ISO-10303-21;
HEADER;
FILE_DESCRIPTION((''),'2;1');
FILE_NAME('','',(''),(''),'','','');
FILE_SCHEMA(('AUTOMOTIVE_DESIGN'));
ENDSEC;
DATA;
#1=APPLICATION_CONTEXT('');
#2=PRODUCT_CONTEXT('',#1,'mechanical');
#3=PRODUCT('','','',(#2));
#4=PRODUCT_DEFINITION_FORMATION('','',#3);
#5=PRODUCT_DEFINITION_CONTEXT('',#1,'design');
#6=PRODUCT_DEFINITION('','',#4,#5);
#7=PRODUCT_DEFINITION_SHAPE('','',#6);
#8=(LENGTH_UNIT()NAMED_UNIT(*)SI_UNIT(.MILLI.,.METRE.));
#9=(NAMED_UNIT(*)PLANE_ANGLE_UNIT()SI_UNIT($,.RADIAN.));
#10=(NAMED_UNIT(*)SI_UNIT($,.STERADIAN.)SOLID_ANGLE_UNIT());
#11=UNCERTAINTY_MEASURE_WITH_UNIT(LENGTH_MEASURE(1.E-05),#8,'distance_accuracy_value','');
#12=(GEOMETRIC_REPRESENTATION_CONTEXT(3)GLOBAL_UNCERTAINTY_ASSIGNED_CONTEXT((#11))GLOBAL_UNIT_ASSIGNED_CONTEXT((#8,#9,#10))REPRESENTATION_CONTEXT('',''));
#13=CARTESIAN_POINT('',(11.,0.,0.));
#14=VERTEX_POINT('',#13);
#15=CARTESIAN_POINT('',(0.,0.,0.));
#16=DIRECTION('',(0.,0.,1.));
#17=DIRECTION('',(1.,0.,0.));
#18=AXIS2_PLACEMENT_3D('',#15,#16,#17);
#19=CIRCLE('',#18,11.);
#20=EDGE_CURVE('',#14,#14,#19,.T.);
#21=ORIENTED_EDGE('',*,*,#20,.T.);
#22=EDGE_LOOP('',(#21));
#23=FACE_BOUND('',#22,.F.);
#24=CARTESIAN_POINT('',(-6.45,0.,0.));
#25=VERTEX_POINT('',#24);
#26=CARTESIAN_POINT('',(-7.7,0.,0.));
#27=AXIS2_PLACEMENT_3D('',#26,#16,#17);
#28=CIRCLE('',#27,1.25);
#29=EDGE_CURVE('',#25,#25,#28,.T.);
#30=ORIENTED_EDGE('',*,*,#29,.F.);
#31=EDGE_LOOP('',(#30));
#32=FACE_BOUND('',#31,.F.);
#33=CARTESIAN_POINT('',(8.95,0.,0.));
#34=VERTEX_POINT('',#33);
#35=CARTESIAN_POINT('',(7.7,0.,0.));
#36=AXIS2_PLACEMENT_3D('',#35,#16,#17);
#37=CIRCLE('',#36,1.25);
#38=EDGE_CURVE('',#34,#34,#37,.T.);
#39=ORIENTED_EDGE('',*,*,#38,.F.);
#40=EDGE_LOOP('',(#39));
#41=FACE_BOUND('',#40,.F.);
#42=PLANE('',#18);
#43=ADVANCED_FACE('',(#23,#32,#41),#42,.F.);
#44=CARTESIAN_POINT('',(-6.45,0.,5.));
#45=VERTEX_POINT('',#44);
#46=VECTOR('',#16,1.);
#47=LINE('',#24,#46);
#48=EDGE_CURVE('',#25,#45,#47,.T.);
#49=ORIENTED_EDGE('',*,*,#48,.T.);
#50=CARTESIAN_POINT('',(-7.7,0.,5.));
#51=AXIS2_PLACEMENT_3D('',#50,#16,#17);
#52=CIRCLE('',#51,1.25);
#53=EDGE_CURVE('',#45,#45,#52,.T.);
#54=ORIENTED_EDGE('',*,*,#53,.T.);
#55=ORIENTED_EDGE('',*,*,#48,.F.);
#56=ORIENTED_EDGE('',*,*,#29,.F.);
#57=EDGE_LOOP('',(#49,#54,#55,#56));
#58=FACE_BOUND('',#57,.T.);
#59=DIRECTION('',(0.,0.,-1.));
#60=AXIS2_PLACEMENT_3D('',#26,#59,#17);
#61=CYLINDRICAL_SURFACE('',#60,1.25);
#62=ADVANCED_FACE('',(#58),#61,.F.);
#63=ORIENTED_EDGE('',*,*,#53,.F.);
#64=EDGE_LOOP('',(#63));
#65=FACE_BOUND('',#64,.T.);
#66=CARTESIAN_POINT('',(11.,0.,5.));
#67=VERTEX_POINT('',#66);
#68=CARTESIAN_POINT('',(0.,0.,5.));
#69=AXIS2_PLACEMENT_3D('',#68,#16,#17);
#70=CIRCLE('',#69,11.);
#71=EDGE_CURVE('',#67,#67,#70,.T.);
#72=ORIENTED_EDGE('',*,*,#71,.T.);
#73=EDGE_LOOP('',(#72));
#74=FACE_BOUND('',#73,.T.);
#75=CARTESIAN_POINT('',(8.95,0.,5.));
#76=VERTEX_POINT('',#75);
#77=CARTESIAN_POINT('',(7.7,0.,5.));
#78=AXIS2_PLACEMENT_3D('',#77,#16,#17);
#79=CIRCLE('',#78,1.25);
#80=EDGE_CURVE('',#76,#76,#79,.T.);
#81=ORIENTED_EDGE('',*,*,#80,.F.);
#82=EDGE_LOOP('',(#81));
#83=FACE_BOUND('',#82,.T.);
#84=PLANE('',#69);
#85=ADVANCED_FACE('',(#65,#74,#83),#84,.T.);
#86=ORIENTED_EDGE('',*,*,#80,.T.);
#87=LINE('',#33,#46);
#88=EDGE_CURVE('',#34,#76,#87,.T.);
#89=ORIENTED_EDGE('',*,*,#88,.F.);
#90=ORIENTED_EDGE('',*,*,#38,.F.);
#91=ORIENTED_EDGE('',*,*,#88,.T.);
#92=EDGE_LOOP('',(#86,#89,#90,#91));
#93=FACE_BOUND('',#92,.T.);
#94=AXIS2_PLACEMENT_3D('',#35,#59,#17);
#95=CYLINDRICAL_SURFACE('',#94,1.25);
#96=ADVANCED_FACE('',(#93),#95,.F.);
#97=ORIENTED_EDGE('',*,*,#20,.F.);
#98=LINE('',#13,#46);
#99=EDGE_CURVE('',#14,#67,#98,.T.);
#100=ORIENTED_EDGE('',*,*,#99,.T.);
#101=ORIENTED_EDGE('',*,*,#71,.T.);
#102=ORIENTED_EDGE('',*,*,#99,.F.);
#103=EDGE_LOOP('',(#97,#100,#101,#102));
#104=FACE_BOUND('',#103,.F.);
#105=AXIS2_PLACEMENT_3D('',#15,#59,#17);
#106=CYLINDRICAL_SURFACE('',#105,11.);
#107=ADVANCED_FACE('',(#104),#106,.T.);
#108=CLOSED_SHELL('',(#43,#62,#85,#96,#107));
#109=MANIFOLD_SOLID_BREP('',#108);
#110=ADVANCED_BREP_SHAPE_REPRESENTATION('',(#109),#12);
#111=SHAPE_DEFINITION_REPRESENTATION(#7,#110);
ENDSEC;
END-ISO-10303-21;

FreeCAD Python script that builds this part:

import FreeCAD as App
import Part
import Sketcher

doc = App.newDocument("Part")
body = doc.addObject("PartDesign::Body", "Body")

sketch1 = doc.addObject("Sketcher::SketchObject", "Sketch")
body.addObject(sketch1)
sketch1.AttachmentSupport = (doc.XY_Plane, [""])
sketch1.MapMode = "FlatFace"
sketch1.addGeometry([
    Part.Circle(App.Vector(0, 0, 0), App.Vector(0, 0, 1), 11),
    Part.Circle(App.Vector(-7.7, 0, 0), App.Vector(0, 0, 1), 1.2),
    Part.Circle(App.Vector(7.7, 0, 0), App.Vector(0, 0, 1), 1.2),
], False)
sketch1.addConstraint([
    Sketcher.Constraint("Coincident", 0, 3, -1, 1),
    Sketcher.Constraint("Equal", 1, 2),
    Sketcher.Constraint("Symmetric", 1, 3, 2, 3, -1, 1),
    Sketcher.Constraint("PointOnObject", 1, 3, -1),
    Sketcher.Constraint("Diameter", 0, 22.0),
    Sketcher.Constraint("Diameter", 1, 2.5),
    Sketcher.Constraint("DistanceX", 1, 3, 2, 3, 15.4),
])
pad1 = doc.addObject("PartDesign::Pad", "Pad")
body.addObject(pad1)
pad1.Profile = sketch1
pad1.Length = 5

doc.recompute()
